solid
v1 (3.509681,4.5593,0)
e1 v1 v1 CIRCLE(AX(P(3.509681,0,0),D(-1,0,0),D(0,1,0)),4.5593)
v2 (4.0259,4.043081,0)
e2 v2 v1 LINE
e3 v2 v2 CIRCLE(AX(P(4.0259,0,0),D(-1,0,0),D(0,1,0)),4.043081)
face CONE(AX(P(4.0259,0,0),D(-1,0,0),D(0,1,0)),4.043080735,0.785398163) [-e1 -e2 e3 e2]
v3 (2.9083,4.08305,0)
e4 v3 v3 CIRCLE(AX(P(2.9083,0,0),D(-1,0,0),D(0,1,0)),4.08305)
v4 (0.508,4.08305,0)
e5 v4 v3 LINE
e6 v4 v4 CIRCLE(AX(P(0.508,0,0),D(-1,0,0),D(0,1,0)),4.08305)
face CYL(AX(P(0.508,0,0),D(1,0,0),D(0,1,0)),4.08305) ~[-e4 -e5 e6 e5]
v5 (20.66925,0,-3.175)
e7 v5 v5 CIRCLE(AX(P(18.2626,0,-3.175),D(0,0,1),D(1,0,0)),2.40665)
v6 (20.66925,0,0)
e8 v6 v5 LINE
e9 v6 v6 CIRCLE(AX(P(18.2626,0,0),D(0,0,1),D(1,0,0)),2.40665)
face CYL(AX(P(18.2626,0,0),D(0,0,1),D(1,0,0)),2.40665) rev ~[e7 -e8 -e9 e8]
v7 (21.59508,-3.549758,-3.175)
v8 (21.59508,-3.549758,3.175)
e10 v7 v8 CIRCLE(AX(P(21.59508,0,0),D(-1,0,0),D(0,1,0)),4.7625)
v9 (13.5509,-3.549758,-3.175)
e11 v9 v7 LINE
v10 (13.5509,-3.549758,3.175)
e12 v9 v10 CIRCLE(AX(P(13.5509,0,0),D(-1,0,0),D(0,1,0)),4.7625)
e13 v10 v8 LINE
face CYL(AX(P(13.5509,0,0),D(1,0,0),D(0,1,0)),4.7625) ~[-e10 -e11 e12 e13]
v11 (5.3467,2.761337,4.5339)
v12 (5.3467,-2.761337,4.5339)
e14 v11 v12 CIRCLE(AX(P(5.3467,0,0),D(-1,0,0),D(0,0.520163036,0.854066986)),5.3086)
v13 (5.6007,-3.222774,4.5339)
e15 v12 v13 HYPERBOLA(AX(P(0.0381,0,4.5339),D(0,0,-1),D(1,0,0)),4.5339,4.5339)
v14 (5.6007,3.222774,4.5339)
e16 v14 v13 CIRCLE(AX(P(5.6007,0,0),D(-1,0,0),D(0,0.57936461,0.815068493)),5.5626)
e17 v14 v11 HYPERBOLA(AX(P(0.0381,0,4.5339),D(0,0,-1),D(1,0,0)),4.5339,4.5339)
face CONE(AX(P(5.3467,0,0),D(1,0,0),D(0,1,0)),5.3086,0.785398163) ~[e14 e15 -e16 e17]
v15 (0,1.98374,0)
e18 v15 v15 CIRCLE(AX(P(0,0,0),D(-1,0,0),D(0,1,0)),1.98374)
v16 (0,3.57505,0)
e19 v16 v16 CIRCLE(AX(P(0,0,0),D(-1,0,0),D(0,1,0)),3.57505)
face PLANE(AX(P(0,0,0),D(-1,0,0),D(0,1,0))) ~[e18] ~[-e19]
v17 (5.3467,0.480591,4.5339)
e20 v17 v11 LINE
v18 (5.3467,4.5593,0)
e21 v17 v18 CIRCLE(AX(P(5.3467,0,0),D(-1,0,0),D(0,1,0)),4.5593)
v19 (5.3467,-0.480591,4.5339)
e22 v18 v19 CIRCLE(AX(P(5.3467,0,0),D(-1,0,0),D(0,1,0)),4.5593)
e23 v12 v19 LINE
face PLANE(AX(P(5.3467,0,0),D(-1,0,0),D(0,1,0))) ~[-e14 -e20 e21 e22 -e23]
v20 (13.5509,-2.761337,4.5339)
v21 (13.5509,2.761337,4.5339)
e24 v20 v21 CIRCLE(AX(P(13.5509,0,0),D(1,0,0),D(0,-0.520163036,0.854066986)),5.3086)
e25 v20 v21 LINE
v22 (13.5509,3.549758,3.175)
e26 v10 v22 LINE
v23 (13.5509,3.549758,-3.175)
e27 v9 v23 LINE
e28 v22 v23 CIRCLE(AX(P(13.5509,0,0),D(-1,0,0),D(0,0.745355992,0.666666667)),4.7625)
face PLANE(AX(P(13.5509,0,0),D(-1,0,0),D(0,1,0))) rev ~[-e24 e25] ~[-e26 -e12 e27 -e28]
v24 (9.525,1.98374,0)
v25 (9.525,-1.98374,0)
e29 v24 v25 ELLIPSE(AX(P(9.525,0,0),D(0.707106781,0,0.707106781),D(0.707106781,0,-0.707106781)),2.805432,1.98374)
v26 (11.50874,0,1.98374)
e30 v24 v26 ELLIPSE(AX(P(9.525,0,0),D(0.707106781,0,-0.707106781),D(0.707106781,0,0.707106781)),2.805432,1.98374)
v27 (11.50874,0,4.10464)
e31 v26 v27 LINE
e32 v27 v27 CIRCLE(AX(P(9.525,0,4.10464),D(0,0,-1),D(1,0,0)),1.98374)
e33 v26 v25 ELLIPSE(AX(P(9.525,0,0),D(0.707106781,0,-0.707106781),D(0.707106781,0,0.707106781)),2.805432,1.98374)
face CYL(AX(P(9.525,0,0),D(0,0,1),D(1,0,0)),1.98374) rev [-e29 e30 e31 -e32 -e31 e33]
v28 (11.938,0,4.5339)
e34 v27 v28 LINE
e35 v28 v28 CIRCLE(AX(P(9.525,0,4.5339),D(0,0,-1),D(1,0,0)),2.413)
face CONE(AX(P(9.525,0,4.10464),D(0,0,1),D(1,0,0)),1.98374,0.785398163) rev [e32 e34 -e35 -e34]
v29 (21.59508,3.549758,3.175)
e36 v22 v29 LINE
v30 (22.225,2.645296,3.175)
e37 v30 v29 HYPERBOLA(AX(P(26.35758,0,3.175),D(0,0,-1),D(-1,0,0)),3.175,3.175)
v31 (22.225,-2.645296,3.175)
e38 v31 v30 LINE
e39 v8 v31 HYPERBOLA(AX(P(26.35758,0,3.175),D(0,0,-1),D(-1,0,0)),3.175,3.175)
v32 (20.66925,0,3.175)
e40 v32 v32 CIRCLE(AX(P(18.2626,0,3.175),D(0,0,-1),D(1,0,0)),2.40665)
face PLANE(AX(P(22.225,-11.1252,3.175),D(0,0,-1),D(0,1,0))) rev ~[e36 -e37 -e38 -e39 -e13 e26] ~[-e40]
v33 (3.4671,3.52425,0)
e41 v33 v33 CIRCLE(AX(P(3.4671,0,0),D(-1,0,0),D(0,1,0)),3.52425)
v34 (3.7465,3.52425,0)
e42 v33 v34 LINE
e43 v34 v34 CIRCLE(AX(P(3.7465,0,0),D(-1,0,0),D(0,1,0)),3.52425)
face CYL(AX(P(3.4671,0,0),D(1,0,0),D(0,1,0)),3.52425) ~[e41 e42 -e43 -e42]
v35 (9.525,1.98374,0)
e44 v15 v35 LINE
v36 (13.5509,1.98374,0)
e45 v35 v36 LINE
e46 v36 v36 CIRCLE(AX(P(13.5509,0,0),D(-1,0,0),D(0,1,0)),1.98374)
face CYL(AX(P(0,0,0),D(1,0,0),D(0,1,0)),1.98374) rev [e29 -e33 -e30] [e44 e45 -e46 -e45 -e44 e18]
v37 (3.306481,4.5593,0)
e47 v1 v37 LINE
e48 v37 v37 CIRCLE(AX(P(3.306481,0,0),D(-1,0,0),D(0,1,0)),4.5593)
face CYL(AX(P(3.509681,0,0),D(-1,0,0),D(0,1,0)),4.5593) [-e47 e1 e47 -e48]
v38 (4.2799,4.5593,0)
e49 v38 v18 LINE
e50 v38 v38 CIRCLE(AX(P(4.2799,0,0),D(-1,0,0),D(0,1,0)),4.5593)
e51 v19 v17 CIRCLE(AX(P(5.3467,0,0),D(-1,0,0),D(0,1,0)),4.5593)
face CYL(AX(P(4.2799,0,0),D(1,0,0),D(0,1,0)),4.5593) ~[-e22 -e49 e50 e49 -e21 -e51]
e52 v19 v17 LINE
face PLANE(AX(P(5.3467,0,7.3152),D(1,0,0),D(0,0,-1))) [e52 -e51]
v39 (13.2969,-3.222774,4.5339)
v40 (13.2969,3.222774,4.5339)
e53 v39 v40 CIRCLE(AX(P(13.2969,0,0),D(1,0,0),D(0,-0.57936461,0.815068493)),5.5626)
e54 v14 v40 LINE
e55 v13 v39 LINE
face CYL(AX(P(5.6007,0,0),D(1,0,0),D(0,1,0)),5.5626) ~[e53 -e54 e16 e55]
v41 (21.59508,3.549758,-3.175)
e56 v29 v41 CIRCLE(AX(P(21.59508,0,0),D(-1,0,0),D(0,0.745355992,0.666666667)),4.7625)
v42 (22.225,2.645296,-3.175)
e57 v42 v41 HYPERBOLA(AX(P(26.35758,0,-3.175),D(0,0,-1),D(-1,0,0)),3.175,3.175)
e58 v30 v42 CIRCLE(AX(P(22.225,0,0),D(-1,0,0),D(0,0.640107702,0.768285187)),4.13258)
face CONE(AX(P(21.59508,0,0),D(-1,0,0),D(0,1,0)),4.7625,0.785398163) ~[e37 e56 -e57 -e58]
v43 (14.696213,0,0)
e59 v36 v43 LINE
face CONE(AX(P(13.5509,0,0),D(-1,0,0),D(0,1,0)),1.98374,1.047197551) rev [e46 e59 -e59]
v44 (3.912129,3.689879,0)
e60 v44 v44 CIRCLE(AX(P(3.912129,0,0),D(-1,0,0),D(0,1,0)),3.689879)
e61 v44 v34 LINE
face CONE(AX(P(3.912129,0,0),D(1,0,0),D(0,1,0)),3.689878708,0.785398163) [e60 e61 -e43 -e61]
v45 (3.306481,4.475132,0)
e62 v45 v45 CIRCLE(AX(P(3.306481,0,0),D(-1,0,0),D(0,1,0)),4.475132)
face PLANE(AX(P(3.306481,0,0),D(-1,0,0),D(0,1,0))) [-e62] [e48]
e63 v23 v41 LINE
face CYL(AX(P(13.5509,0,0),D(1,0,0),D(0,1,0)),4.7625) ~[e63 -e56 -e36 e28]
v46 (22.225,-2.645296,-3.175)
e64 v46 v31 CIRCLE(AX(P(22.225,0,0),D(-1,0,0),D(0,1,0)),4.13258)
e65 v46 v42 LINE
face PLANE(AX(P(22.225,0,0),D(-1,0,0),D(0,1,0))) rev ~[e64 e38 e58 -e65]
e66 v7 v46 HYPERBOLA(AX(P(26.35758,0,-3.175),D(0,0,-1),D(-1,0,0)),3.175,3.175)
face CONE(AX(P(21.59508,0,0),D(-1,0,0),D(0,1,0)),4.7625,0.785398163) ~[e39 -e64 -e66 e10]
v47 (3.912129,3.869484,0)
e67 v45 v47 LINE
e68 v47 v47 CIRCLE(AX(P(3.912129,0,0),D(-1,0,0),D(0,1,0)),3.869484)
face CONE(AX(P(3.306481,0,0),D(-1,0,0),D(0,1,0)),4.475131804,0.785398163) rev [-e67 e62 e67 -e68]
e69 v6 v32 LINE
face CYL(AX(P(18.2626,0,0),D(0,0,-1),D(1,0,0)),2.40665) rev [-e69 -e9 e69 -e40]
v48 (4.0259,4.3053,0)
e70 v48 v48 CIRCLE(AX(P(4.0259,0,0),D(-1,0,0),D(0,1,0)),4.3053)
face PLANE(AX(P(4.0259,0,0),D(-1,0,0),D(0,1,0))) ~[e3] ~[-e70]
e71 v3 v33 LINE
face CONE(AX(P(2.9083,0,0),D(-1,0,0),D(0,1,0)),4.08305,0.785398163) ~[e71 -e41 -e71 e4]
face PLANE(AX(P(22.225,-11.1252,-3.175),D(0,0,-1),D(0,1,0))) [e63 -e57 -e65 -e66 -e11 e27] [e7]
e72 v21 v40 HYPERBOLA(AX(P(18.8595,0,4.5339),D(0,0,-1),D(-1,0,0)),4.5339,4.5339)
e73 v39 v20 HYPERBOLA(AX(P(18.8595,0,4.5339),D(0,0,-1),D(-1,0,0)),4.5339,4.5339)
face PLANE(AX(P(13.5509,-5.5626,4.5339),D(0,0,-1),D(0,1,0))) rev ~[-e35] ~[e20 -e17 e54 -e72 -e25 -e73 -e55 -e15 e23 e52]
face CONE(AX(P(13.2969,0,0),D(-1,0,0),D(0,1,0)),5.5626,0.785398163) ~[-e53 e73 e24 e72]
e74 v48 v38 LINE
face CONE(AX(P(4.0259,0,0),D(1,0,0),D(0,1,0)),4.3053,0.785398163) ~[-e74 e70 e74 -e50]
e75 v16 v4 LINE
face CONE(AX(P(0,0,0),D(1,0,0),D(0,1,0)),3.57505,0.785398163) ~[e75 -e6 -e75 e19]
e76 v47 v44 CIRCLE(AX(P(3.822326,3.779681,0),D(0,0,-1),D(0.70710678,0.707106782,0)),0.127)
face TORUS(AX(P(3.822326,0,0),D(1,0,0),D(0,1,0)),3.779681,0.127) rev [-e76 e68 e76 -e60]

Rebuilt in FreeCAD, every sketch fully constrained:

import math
import FreeCAD as App
import Part
import Sketcher

V = App.Vector
Q = App.Units.Quantity


def add_polygon(sketch, points):
    """Adds a closed chain of lines whose ends are joined by coincident constraints."""
    first, n = sketch.GeometryCount, len(points)
    for a, b in zip(points, points[1:] + points[:1]):
        sketch.addGeometry(Part.LineSegment(App.Vector(*a, 0), App.Vector(*b, 0)), False)
    for i in range(n):
        sketch.addConstraint(Sketcher.Constraint("Coincident", first + i, 2, first + (i + 1) % n, 1))

doc = App.newDocument("Part")
body = doc.addObject("PartDesign::Body", "Body")

# Sketch on XY plane
sketch1 = doc.addObject("Sketcher::SketchObject", "Sketch")
body.addObject(sketch1)
sketch1.AttachmentSupport = (doc.XY_Plane, [""])
sketch1.MapMode = "FlatFace"
add_polygon(sketch1, [(0, 3.57505), (0, 0), (13.5509, 0), (13.5509, 5.3086), (13.2969, 5.5626), (5.6007, 5.5626), (5.3467, 5.3086), (5.3467, 4.5593), (4.2799, 4.5593), (4.0259, 4.3053), (4.0259, 3.52425), (3.4671, 3.52425), (2.9083, 4.08305), (0.508, 4.08305)])  # lines 0-13
sketch1.addConstraint(Sketcher.Constraint("Vertical", 0))
sketch1.addConstraint(Sketcher.Constraint("Horizontal", 1))
sketch1.addConstraint(Sketcher.Constraint("Vertical", 2))
sketch1.addConstraint(Sketcher.Constraint("Horizontal", 4))
sketch1.addConstraint(Sketcher.Constraint("Vertical", 6))
sketch1.addConstraint(Sketcher.Constraint("Horizontal", 7))
sketch1.addConstraint(Sketcher.Constraint("Vertical", 9))
sketch1.addConstraint(Sketcher.Constraint("Horizontal", 10))
sketch1.addConstraint(Sketcher.Constraint("Horizontal", 12))
sketch1.addConstraint(Sketcher.Constraint("Coincident", 0, 2, -1, 1))
sketch1.addConstraint(Sketcher.Constraint("Perpendicular", 3, 5))
sketch1.addConstraint(Sketcher.Constraint("Parallel", 5, 8))
sketch1.addConstraint(Sketcher.Constraint("Perpendicular", 8, 11))
sketch1.addConstraint(Sketcher.Constraint("Perpendicular", 11, 13))
sketch1.addConstraint(Sketcher.Constraint("Horizontal", 2, 2, 5, 2))
sketch1.addConstraint(Sketcher.Constraint("Equal", 3, 5))
sketch1.addConstraint(Sketcher.Constraint("Equal", 5, 8))
sketch1.addConstraint(Sketcher.Constraint("DistanceX", 4, 2, 4, 1, Q("0.303 in")))
sketch1.addConstraint(Sketcher.Constraint("DistanceX", 7, 2, 7, 1, Q("0.042 in")))
sketch1.addConstraint(Sketcher.Constraint("DistanceX", 10, 2, 10, 1, Q("0.022 in")))
sketch1.addConstraint(Sketcher.Constraint("DistanceY", 2, 1, 2, 2, Q("0.209 in")))
sketch1.addConstraint(Sketcher.Constraint("DistanceX", -1, 1, 12, 2, Q("0.02 in")))
sketch1.addConstraint(Sketcher.Constraint("DistanceX", 3, 2, 2, 2, Q("0.01 in")))
sketch1.addConstraint(Sketcher.Constraint("DistanceX", 1, 1, 1, 2, Q("0.5335 in")))
sketch1.addConstraint(Sketcher.Constraint("DistanceX", 12, 2, 12, 1, Q("0.0945 in")))
sketch1.addConstraint(Sketcher.Constraint("DistanceY", 6, 2, 6, 1, Q("0.0295 in")))
sketch1.addConstraint(Sketcher.Constraint("DistanceY", 0, 2, 0, 1, Q("3.57505 mm")))
revolution = doc.addObject("PartDesign::Revolution", "Revolution")
body.addObject(revolution)
revolution.Profile = sketch1
revolution.ReferenceAxis = (sketch1, ["H_Axis"])
revolution.Angle = 360

# Sketch on XY plane
sketch2 = doc.addObject("Sketcher::SketchObject", "Sketch001")
body.addObject(sketch2)
sketch2.AttachmentSupport = (doc.XY_Plane, [""])
sketch2.MapMode = "FlatFace"
add_polygon(sketch2, [(13.5509, 4.7625), (13.5509, 0), (22.225, 0), (22.225, 4.13258), (21.59508, 4.7625)])  # lines 0-4
sketch2.addConstraint(Sketcher.Constraint("Vertical", 0))
sketch2.addConstraint(Sketcher.Constraint("Horizontal", 1))
sketch2.addConstraint(Sketcher.Constraint("Vertical", 2))
sketch2.addConstraint(Sketcher.Constraint("Horizontal", 4))
sketch2.addConstraint(Sketcher.Constraint("PointOnObject", 0, 2, -1))
sketch2.addConstraint(Sketcher.Constraint("Angle", 3, Q("135 deg")))
sketch2.addConstraint(Sketcher.Constraint("DistanceY", 0, 2, 0, 1, Q("0.1875 in")))
sketch2.addConstraint(Sketcher.Constraint("DistanceX", 1, 1, 1, 2, Q("0.3415 in")))
sketch2.addConstraint(Sketcher.Constraint("DistanceX", 4, 2, 4, 1, Q("0.3167 in")))
sketch2.addConstraint(Sketcher.Constraint("DistanceX", -1, 1, 1, 2, Q("0.875 in")))
revolution2 = doc.addObject("PartDesign::Revolution", "Revolution001")
body.addObject(revolution2)
revolution2.Profile = sketch2
revolution2.ReferenceAxis = (sketch2, ["H_Axis"])
revolution2.Angle = 360

# Sketch on YZ plane
sketch3 = doc.addObject("Sketcher::SketchObject", "Sketch002")
body.addObject(sketch3)
sketch3.AttachmentSupport = (doc.YZ_Plane, [""])
sketch3.MapMode = "FlatFace"
sketch3.AttachmentOffset = App.Placement(V(0, 0, 0.875 * 25.4), App.Rotation())
add_polygon(sketch3, [(22.2504, 11.1252), (-22.2504, 11.1252), (-22.2504, -11.1252), (22.2504, -11.1252)])  # lines 0-3
add_polygon(sketch3, [(-11.1252, -3.175), (-11.1252, 3.175), (11.1252, 3.175), (11.1252, -3.175)])  # lines 4-7
sketch3.addConstraint(Sketcher.Constraint("Horizontal", 0))
sketch3.addConstraint(Sketcher.Constraint("Vertical", 1))
sketch3.addConstraint(Sketcher.Constraint("Horizontal", 2))
sketch3.addConstraint(Sketcher.Constraint("Vertical", 3))
sketch3.addConstraint(Sketcher.Constraint("Vertical", 4))
sketch3.addConstraint(Sketcher.Constraint("Horizontal", 5))
sketch3.addConstraint(Sketcher.Constraint("Vertical", 6))
sketch3.addConstraint(Sketcher.Constraint("Horizontal", 7))
sketch3.addConstraint(Sketcher.Constraint("Symmetric", 0, 2, 2, 2, -1, 1))
sketch3.addConstraint(Sketcher.Constraint("Symmetric", 4, 2, 6, 2, -1, 1))
sketch3.addConstraint(Sketcher.Constraint("Equal", 7, 1))
sketch3.addConstraint(Sketcher.Constraint("DistanceY", 4, 1, 4, 2, Q("0.25 in")))
sketch3.addConstraint(Sketcher.Constraint("DistanceX", 0, 2, 0, 1, Q("1.752 in")))
sketch3.addConstraint(Sketcher.Constraint("DistanceX", 5, 1, 5, 2, Q("0.876 in")))
pocket1 = doc.addObject("PartDesign::Pocket", "Pocket")
body.addObject(pocket1)
pocket1.Profile = sketch3
pocket1.Length = Q("0.3415 in")

# Sketch on YZ plane
sketch4 = doc.addObject("Sketcher::SketchObject", "Sketch003")
body.addObject(sketch4)
sketch4.AttachmentSupport = (doc.YZ_Plane, [""])
sketch4.MapMode = "FlatFace"
sketch4.AttachmentOffset = App.Placement(V(0, 0, 0.5335 * 25.4), App.Rotation())
add_polygon(sketch4, [(5.5626, 10.0965), (-5.5626, 10.0965), (-5.5626, 4.5339), (5.5626, 4.5339)])  # lines 0-3
sketch4.addConstraint(Sketcher.Constraint("Horizontal", 0))
sketch4.addConstraint(Sketcher.Constraint("Vertical", 1))
sketch4.addConstraint(Sketcher.Constraint("Horizontal", 2))
sketch4.addConstraint(Sketcher.Constraint("Vertical", 3))
sketch4.addConstraint(Sketcher.Constraint("DistanceX", 0, 2, 0, 1, Q("0.438 in")))
sketch4.addConstraint(Sketcher.Constraint("DistanceY", 1, 2, 1, 1, Q("0.219 in")))
sketch4.addConstraint(Sketcher.Constraint("DistanceX", 0, 2, -1, 1, Q("0.219 in")))
sketch4.addConstraint(Sketcher.Constraint("DistanceY", -1, 1, 0, 2, Q("0.3975 in")))
pocket2 = doc.addObject("PartDesign::Pocket", "Pocket001")
body.addObject(pocket2)
pocket2.Profile = sketch4
pocket2.Length = Q("0.323 in")

# Sketch on XY plane
sketch5 = doc.addObject("Sketcher::SketchObject", "Sketch004")
body.addObject(sketch5)
sketch5.AttachmentSupport = (doc.XY_Plane, [""])
sketch5.MapMode = "FlatFace"
add_polygon(sketch5, [(0, 1.98374), (0, 0), (14.696213, 0), (13.5509, 1.98374)])  # lines 0-3
sketch5.addConstraint(Sketcher.Constraint("Vertical", 0))
sketch5.addConstraint(Sketcher.Constraint("Horizontal", 1))
sketch5.addConstraint(Sketcher.Constraint("Horizontal", 3))
sketch5.addConstraint(Sketcher.Constraint("Coincident", 0, 2, -1, 1))
sketch5.addConstraint(Sketcher.Constraint("Angle", 2, Q("120 deg")))
sketch5.addConstraint(Sketcher.Constraint("DistanceX", 3, 2, 3, 1, Q("0.5335 in")))
sketch5.addConstraint(Sketcher.Constraint("DistanceY", 0, 2, 0, 1, Q("0.0781 in")))
groove = doc.addObject("PartDesign::Groove", "Groove")
body.addObject(groove)
groove.Profile = sketch5
groove.ReferenceAxis = (sketch5, ["H_Axis"])
groove.Angle = 360

# Sketch on XZ plane
sketch6 = doc.addObject("Sketcher::SketchObject", "Sketch005")
body.addObject(sketch6)
sketch6.AttachmentSupport = (doc.XZ_Plane, [""])
sketch6.MapMode = "FlatFace"
add_polygon(sketch6, [(11.50874, 0), (9.525, 0), (9.525, 4.5339), (11.938, 4.5339), (11.50874, 4.10464)])  # lines 0-4
sketch6.addGeometry(Part.LineSegment(V(9.525, 4.5339, 0), V(9.525, 0, 0)), True)  # axis
sketch6.addConstraint(Sketcher.Constraint("Horizontal", 0))
sketch6.addConstraint(Sketcher.Constraint("Vertical", 1))
sketch6.addConstraint(Sketcher.Constraint("Horizontal", 2))
sketch6.addConstraint(Sketcher.Constraint("Vertical", 4))
sketch6.addConstraint(Sketcher.Constraint("Vertical", 5))
sketch6.addConstraint(Sketcher.Constraint("Coincident", 5, 1, 1, 2))
sketch6.addConstraint(Sketcher.Constraint("PointOnObject", 0, 2, -1))
sketch6.addConstraint(Sketcher.Constraint("PointOnObject", 5, 2, -1))
sketch6.addConstraint(Sketcher.Constraint("Angle", 3, Q("-135 deg")))
sketch6.addConstraint(Sketcher.Constraint("DistanceX", 2, 1, 2, 2, Q("0.095 in")))
sketch6.addConstraint(Sketcher.Constraint("DistanceX", -1, 1, 2, 2, Q("0.47 in")))
sketch6.addConstraint(Sketcher.Constraint("DistanceX", 0, 2, 0, 1, Q("0.0781 in")))
sketch6.addConstraint(Sketcher.Constraint("DistanceY", 1, 1, 1, 2, Q("0.1785 in")))
groove2 = doc.addObject("PartDesign::Groove", "Groove001")
body.addObject(groove2)
groove2.Profile = sketch6
groove2.ReferenceAxis = (sketch6, ["Axis0"])
groove2.Angle = 360

# Sketch on XY plane
sketch7 = doc.addObject("Sketcher::SketchObject", "Sketch006")
body.addObject(sketch7)
sketch7.AttachmentSupport = (doc.XY_Plane, [""])
sketch7.MapMode = "FlatFace"
sketch7.addGeometry(Part.LineSegment(V(3.306481, 4.5593, 0), V(3.306481, 4.475132, 0)), False)
sketch7.addGeometry(Part.LineSegment(V(3.306481, 4.475132, 0), V(3.912129, 3.869484, 0)), False)
sketch7.addGeometry(Part.ArcOfCircle(Part.Circle(V(3.822326, 3.779681, 0), V(0, 0, 1), 0.127), math.radians(-45), math.radians(45)), False)
sketch7.addGeometry(Part.LineSegment(V(3.912129, 3.689879, 0), V(3.7465, 3.52425, 0)), False)
sketch7.addGeometry(Part.LineSegment(V(3.7465, 3.52425, 0), V(3.4671, 3.52425, 0)), False)
sketch7.addGeometry(Part.LineSegment(V(3.4671, 3.52425, 0), V(3.4671, 3.27025, 0)), False)
sketch7.addGeometry(Part.LineSegment(V(3.4671, 3.27025, 0), V(4.0259, 3.27025, 0)), False)
sketch7.addGeometry(Part.LineSegment(V(4.0259, 3.27025, 0), V(4.0259, 4.043081, 0)), False)
sketch7.addGeometry(Part.LineSegment(V(4.0259, 4.043081, 0), V(3.509681, 4.5593, 0)), False)
sketch7.addGeometry(Part.LineSegment(V(3.509681, 4.5593, 0), V(3.306481, 4.5593, 0)), False)
sketch7.addConstraint(Sketcher.Constraint("Coincident", 0, 2, 1, 1))
sketch7.addConstraint(Sketcher.Constraint("Tangent", 1, 2, 2, 2))
sketch7.addConstraint(Sketcher.Constraint("Tangent", 2, 1, 3, 1))
sketch7.addConstraint(Sketcher.Constraint("Coincident", 3, 2, 4, 1))
sketch7.addConstraint(Sketcher.Constraint("Coincident", 4, 2, 5, 1))
sketch7.addConstraint(Sketcher.Constraint("Coincident", 5, 2, 6, 1))
sketch7.addConstraint(Sketcher.Constraint("Coincident", 6, 2, 7, 1))
sketch7.addConstraint(Sketcher.Constraint("Coincident", 7, 2, 8, 1))
sketch7.addConstraint(Sketcher.Constraint("Coincident", 8, 2, 9, 1))
sketch7.addConstraint(Sketcher.Constraint("Coincident", 9, 2, 0, 1))
sketch7.addConstraint(Sketcher.Constraint("Vertical", 0))
sketch7.addConstraint(Sketcher.Constraint("Horizontal", 4))
sketch7.addConstraint(Sketcher.Constraint("Vertical", 5))
sketch7.addConstraint(Sketcher.Constraint("Horizontal", 6))
sketch7.addConstraint(Sketcher.Constraint("Vertical", 7))
sketch7.addConstraint(Sketcher.Constraint("Horizontal", 9))
sketch7.addConstraint(Sketcher.Constraint("Perpendicular", 1, 3))
sketch7.addConstraint(Sketcher.Constraint("Perpendicular", 3, 8))
sketch7.addConstraint(Sketcher.Constraint("Vertical", 1, 2, 2, 1))
sketch7.addConstraint(Sketcher.Constraint("Radius", 2, Q("0.005 in")))
sketch7.addConstraint(Sketcher.Constraint("DistanceY", 5, 2, 5, 1, Q("0.01 in")))
sketch7.addConstraint(Sketcher.Constraint("DistanceX", 4, 2, 4, 1, Q("0.011 in")))
sketch7.addConstraint(Sketcher.Constraint("DistanceX", 6, 1, 6, 2, Q("0.022 in")))
sketch7.addConstraint(Sketcher.Constraint("DistanceX", 9, 2, 9, 1, Q("0.008 in")))
sketch7.addConstraint(Sketcher.Constraint("DistanceX", -1, 1, 3, 2, Q("0.1475 in")))
sketch7.addConstraint(Sketcher.Constraint("DistanceY", -1, 1, 8, 2, Q("0.1795 in")))
sketch7.addConstraint(Sketcher.Constraint("DistanceY", 0, 2, 0, 1, Q("0.084168 mm")))
sketch7.addConstraint(Sketcher.Constraint("DistanceY", 7, 1, 7, 2, Q("0.772831 mm")))
sketch7.addConstraint(Sketcher.Constraint("DistanceY", -1, 1, 2, 3, Q("3.779681 mm")))
revolution3 = doc.addObject("PartDesign::Revolution", "Revolution002")
body.addObject(revolution3)
revolution3.Profile = sketch7
revolution3.ReferenceAxis = (sketch7, ["H_Axis"])
revolution3.Angle = 360

# Sketch on XY plane
sketch8 = doc.addObject("Sketcher::SketchObject", "Sketch007")
body.addObject(sketch8)
sketch8.AttachmentSupport = (doc.XY_Plane, [""])
sketch8.MapMode = "FlatFace"
sketch8.addGeometry(Part.Circle(V(18.2626, 0, 0), V(0, 0, 1), 2.40665), False)
sketch8.addConstraint(Sketcher.Constraint("PointOnObject", 0, 3, -1))
sketch8.addConstraint(Sketcher.Constraint("Diameter", 0, Q("0.1895 in")))
sketch8.addConstraint(Sketcher.Constraint("DistanceX", -1, 1, 0, 3, Q("0.719 in")))
pocket3 = doc.addObject("PartDesign::Pocket", "Pocket002")
body.addObject(pocket3)
pocket3.Profile = sketch8
pocket3.Type = "ThroughAll"
pocket3.Midplane = True

doc.recompute()
